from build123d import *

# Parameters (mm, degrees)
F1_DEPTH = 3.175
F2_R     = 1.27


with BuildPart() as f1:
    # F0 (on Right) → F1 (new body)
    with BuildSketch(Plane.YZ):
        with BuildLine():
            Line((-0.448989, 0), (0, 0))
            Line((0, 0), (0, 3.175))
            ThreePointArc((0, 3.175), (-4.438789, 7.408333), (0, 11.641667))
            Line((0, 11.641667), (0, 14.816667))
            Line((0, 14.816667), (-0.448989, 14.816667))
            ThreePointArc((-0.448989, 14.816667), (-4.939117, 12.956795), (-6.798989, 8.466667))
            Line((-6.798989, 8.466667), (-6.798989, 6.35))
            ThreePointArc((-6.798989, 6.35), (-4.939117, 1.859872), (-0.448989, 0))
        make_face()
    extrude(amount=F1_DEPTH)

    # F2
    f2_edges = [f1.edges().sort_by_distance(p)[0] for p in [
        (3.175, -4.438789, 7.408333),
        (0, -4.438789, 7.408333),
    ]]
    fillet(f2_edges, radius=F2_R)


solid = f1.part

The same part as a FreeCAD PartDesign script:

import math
import FreeCAD as App
import Part
import Sketcher

V = App.Vector
Q = App.Units.Quantity


def edges_at(feature, points):
    """Names of the edges that pass closest to the given points."""
    edges = feature.Shape.Edges
    near = lambda p: min(range(len(edges)), key=lambda i: edges[i].distToShape(Part.Vertex(*p))[0])
    return sorted({f"Edge{near(p) + 1}" for p in points})

doc = App.newDocument("Part")
params = doc.addObject("Spreadsheet::Sheet", "Params")
for row, (alias, value) in enumerate([
    ("sketch1_radius", "0.25 in"),
    ("sketch1_height", "0.125 in"),
    ("pad1_length", "0.125 in"),
    ("fillet_radius", "0.05 in"),
], start=1):
    params.set(f"A{row}", alias)
    params.set(f"B{row}", "=" + value)
    params.setAlias(f"B{row}", alias)

body = doc.addObject("PartDesign::Body", "Body")

# Sketch on YZ plane
sketch1 = body.newObject("Sketcher::SketchObject", "Sketch")
sketch1.AttachmentSupport = (doc.getObject("YZ_Plane"), [""])
sketch1.MapMode = "FlatFace"
sketch1.addGeometry([
    Part.LineSegment(V(-0.45, 0, 0), V(0, 0, 0)),  # 0
    Part.LineSegment(V(0, 0, 0), V(0, 3.17, 0)),  # 1
    Part.ArcOfCircle(Part.Circle(V(-0.2, 7.41, 0), V(0, 0, 1), 4.24), math.radians(87), math.radians(273)),  # 2
    Part.LineSegment(V(0, 11.64, 0), V(0, 14.82, 0)),  # 3
    Part.LineSegment(V(0, 14.82, 0), V(-0.45, 14.82, 0)),  # 4
    Part.ArcOfCircle(Part.Circle(V(-0.45, 8.47, 0), V(0, 0, 1), 6.35), math.radians(90), math.radians(180)),  # 5
    Part.LineSegment(V(-6.8, 8.47, 0), V(-6.8, 6.35, 0)),  # 6
    Part.ArcOfCircle(Part.Circle(V(-0.45, 6.35, 0), V(0, 0, 1), 6.35), math.radians(-180), math.radians(-90)),  # 7
], False)
sketch1.addConstraint([
    Sketcher.Constraint("Coincident", 0, 2, 1, 1),
    Sketcher.Constraint("Coincident", 1, 2, 2, 2),
    Sketcher.Constraint("Coincident", 2, 1, 3, 1),
    Sketcher.Constraint("Coincident", 3, 2, 4, 1),
    Sketcher.Constraint("Tangent", 4, 2, 5, 1),
    Sketcher.Constraint("Tangent", 5, 2, 6, 1),
    Sketcher.Constraint("Tangent", 6, 2, 7, 1),
    Sketcher.Constraint("Tangent", 7, 2, 0, 1),
    Sketcher.Constraint("Horizontal", 0),
    Sketcher.Constraint("Vertical", 1),
    Sketcher.Constraint("Vertical", 3),
    Sketcher.Constraint("Horizontal", 4),
    Sketcher.Constraint("Vertical", 6),
    Sketcher.Constraint("Coincident", 0, 2, -1, 1),
    Sketcher.Constraint("Equal", 5, 7),
    Sketcher.Constraint("PointOnObject", 2, 1, -2),
    Sketcher.Constraint("Equal", 1, 3),
    Sketcher.Constraint("Radius", 5, Q("0.25 in")),
    Sketcher.Constraint("DistanceY", 1, 1, 1, 2, Q("0.125 in")),
    Sketcher.Constraint("Radius", 2, 4.238088),
    Sketcher.Constraint("DistanceX", 0, 1, 0, 2, 0.448989),
    Sketcher.Constraint("DistanceX", 2, 3, -1, 1, 0.200701),
])
sketch1.setExpression("Constraints[17]", "Params.sketch1_radius")
sketch1.setExpression("Constraints[18]", "Params.sketch1_height")
pad1 = body.newObject("PartDesign::Pad", "Pad")
pad1.Profile = sketch1
pad1.setExpression("Length", "Params.pad1_length")
doc.recompute()

fillet = body.newObject("PartDesign::Fillet", "Fillet")
fillet.Base = (pad1, edges_at(pad1, [(3.175, -4.439, 7.408), (0, -4.439, 7.408)]))
fillet.setExpression("Radius", "Params.fillet_radius")

doc.recompute()
